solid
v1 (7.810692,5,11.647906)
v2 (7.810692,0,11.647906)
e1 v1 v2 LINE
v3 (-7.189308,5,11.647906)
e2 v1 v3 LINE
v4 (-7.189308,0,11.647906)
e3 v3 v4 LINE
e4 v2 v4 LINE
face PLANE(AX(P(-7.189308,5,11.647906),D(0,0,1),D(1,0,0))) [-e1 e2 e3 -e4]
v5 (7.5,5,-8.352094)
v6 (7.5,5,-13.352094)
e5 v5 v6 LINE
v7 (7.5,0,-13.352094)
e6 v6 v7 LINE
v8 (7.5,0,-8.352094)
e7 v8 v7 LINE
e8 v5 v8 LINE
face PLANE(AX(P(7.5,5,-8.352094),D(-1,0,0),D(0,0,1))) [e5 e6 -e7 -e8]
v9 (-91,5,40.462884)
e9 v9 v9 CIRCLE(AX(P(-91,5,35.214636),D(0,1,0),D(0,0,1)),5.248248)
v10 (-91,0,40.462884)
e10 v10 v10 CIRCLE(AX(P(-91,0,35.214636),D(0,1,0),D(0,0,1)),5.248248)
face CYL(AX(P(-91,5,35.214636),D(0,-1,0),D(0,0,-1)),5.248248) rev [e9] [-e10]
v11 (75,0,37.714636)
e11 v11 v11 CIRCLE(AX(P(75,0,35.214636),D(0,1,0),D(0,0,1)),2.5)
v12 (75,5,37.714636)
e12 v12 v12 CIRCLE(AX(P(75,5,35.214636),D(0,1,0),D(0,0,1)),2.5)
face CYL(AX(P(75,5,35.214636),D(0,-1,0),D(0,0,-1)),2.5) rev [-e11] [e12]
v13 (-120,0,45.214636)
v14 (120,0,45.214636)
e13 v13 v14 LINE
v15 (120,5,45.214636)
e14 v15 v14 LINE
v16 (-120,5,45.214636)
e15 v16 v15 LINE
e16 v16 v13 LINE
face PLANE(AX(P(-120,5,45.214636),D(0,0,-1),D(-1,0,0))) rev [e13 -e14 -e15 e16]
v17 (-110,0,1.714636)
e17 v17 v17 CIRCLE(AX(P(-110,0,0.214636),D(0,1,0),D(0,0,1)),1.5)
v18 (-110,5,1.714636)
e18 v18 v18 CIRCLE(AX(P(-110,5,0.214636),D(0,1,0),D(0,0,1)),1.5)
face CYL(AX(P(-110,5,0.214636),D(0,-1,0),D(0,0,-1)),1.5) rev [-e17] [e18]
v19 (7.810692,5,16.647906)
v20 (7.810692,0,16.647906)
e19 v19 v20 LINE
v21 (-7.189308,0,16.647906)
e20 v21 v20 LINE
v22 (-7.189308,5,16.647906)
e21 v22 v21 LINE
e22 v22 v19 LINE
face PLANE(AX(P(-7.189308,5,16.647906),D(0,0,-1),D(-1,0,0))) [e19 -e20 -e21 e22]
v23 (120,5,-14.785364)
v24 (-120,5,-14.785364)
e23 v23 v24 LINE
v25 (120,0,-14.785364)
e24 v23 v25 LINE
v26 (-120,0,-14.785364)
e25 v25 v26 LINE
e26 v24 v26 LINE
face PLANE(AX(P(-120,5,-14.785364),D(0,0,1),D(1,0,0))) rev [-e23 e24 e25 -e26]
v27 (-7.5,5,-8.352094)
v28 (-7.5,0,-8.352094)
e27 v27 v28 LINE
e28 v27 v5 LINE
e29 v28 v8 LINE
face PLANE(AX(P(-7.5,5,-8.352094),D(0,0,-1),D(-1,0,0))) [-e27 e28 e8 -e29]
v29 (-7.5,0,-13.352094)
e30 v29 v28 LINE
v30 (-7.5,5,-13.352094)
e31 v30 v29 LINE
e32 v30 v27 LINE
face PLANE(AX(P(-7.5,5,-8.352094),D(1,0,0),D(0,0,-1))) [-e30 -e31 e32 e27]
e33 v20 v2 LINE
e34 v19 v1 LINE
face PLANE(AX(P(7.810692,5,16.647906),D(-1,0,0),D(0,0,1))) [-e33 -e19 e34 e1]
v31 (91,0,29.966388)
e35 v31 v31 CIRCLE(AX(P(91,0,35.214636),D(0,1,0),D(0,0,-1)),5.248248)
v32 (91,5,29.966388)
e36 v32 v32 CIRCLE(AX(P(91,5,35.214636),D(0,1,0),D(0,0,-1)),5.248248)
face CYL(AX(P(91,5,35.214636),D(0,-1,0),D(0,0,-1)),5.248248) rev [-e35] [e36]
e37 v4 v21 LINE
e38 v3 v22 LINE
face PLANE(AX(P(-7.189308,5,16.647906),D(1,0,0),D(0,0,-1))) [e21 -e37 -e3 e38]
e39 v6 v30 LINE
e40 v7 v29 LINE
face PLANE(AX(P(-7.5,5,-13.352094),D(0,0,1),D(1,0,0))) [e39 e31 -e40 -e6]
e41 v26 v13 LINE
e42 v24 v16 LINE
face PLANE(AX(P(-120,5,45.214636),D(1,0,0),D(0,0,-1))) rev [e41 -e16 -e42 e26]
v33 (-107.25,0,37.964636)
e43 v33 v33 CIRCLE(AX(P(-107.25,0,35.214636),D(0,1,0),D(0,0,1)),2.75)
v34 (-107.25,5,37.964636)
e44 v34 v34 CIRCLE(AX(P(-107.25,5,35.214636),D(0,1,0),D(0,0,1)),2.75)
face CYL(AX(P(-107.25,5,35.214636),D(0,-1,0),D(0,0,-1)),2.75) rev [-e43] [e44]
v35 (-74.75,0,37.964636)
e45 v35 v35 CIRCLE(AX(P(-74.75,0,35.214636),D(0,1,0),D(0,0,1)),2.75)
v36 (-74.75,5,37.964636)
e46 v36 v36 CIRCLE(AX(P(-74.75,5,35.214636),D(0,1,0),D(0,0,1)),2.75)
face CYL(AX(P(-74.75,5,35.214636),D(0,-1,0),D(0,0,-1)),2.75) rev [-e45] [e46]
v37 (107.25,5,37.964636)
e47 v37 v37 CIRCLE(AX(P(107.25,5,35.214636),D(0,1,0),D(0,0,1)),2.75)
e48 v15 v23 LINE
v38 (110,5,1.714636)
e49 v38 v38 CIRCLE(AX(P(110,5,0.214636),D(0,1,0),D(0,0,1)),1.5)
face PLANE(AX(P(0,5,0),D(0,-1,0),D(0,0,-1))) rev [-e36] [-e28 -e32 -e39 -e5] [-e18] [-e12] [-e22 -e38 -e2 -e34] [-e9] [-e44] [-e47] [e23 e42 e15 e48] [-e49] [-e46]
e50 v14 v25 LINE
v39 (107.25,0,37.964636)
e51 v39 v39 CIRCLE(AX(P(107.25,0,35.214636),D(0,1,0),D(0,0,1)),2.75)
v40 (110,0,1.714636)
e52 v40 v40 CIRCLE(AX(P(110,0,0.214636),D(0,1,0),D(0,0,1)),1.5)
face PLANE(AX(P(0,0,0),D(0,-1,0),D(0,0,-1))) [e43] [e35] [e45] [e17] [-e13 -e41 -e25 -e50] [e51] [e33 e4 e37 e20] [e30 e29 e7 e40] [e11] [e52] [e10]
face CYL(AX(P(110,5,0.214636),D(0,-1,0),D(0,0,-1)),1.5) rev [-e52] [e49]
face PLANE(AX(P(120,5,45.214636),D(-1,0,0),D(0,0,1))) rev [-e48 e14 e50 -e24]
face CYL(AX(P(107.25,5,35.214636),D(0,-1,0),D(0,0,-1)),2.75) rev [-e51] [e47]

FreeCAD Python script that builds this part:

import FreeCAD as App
import Part
import Sketcher
Q = App.Units.Quantity


def add_polygon(sketch, points):
    """Adds a closed chain of lines whose ends are joined by coincident constraints."""
    first, n = sketch.GeometryCount, len(points)
    for a, b in zip(points, points[1:] + points[:1]):
        sketch.addGeometry(Part.LineSegment(App.Vector(*a, 0), App.Vector(*b, 0)), False)
    for i in range(n):
        sketch.addConstraint(Sketcher.Constraint("Coincident", first + i, 2, first + (i + 1) % n, 1))

doc = App.newDocument("Part")
body = doc.addObject("PartDesign::Body", "Body")

# Sketch on XZ plane
sketch1 = body.newObject("Sketcher::SketchObject", "Sketch")
sketch1.AttachmentSupport = (doc.getObject("XZ_Plane"), [""])
sketch1.MapMode = "FlatFace"
add_polygon(sketch1, [(-120, -14.8), (-120, 45.2), (120, 45.2), (120, -14.8)])  # lines 0-3
sketch1.addGeometry(Part.Circle(App.Vector(-107.2, 35.2, 0), App.Vector(0, 0, 1), 2.8), False)  # 4
sketch1.addGeometry(Part.Circle(App.Vector(-91, 35.2, 0), App.Vector(0, 0, 1), 5.2), False)  # 5
sketch1.addGeometry(Part.Circle(App.Vector(-74.8, 35.2, 0), App.Vector(0, 0, 1), 2.8), False)  # 6
sketch1.addGeometry(Part.Circle(App.Vector(75, 35.2, 0), App.Vector(0, 0, 1), 2.5), False)  # 7
sketch1.addGeometry(Part.Circle(App.Vector(91, 35.2, 0), App.Vector(0, 0, 1), 5.2), False)  # 8
sketch1.addGeometry(Part.Circle(App.Vector(107.2, 35.2, 0), App.Vector(0, 0, 1), 2.8), False)  # 9
add_polygon(sketch1, [(7.8, 16.6), (-7.2, 16.6), (-7.2, 11.6), (7.8, 11.6)])  # lines 10-13
sketch1.addGeometry(Part.Circle(App.Vector(-110, 0.2, 0), App.Vector(0, 0, 1), 1.5), False)  # 14
sketch1.addGeometry(Part.Circle(App.Vector(110, 0.2, 0), App.Vector(0, 0, 1), 1.5), False)  # 15
add_polygon(sketch1, [(7.5, -8.4), (-7.5, -8.4), (-7.5, -13.4), (7.5, -13.4)])  # lines 16-19
sketch1.addConstraint([
    Sketcher.Constraint("Vertical", 0),
    Sketcher.Constraint("Horizontal", 1),
    Sketcher.Constraint("Vertical", 2),
    Sketcher.Constraint("Horizontal", 3),
    Sketcher.Constraint("Horizontal", 10),
    Sketcher.Constraint("Vertical", 11),
    Sketcher.Constraint("Horizontal", 12),
    Sketcher.Constraint("Vertical", 13),
    Sketcher.Constraint("Horizontal", 16),
    Sketcher.Constraint("Vertical", 17),
    Sketcher.Constraint("Horizontal", 18),
    Sketcher.Constraint("Vertical", 19),
    Sketcher.Constraint("Equal", 4, 6),
    Sketcher.Constraint("Equal", 5, 8),
    Sketcher.Constraint("Equal", 6, 9),
    Sketcher.Constraint("Equal", 14, 15),
    Sketcher.Constraint("Symmetric", 5, 3, 8, 3, -2),
    Sketcher.Constraint("Symmetric", 4, 3, 9, 3, -2),
    Sketcher.Constraint("Symmetric", 14, 3, 15, 3, -2),
    Sketcher.Constraint("Horizontal", 4, 3, 5, 3),
    Sketcher.Constraint("Horizontal", 5, 3, 6, 3),
    Sketcher.Constraint("Horizontal", 6, 3, 7, 3),
    Sketcher.Constraint("Equal", 12, 16),
    Sketcher.Constraint("Equal", 13, 17),
    Sketcher.Constraint("Diameter", 7, Q("5 mm")),
    Sketcher.Constraint("Diameter", 14, Q("3 mm")),
    Sketcher.Constraint("Diameter", 4, Q("5.5 mm")),
    Sketcher.Constraint("DistanceX", 1, 1, 1, 2, Q("240 mm")),
    Sketcher.Constraint("DistanceX", 10, 2, 10, 1, Q("15 mm")),
    Sketcher.Constraint("DistanceY", 0, 1, 0, 2, Q("60 mm")),
    Sketcher.Constraint("DistanceY", 11, 2, 11, 1, Q("5 mm")),
    Sketcher.Constraint("DistanceX", 5, 3, -1, 1, Q("91 mm")),
    Sketcher.Constraint("DistanceX", -1, 1, 7, 3, Q("75 mm")),
    Sketcher.Constraint("DistanceX", 14, 3, -1, 1, Q("110 mm")),
    Sketcher.Constraint("DistanceX", 0, 2, -1, 1, Q("120 mm")),
    Sketcher.Constraint("DistanceX", 6, 3, 9, 3, Q("182 mm")),
    Sketcher.Constraint("DistanceY", 14, 3, 4, 3, Q("35 mm")),
    Sketcher.Constraint("DistanceY", 4, 3, 0, 2, Q("10 mm")),
    Sketcher.Constraint("DistanceY", 16, 2, 11, 2, Q("20 mm")),
    Sketcher.Constraint("DistanceX", 16, 2, -1, 1, Q("7.5 mm")),
    Sketcher.Constraint("DistanceX", 4, 3, 6, 3, Q("32.5 mm")),
    Sketcher.Constraint("Diameter", 5, Q("10.496496 mm")),
    Sketcher.Constraint("DistanceX", 10, 2, -1, 1, Q("7.189308 mm")),
    Sketcher.Constraint("DistanceY", 10, 2, 6, 3, Q("18.566731 mm")),
    Sketcher.Constraint("DistanceY", -1, 1, 4, 3, Q("35.214636 mm")),
])
pad1 = body.newObject("PartDesign::Pad", "Pad")
pad1.Profile = sketch1
pad1.Length = 5
pad1.Reversed = True

doc.recompute()
